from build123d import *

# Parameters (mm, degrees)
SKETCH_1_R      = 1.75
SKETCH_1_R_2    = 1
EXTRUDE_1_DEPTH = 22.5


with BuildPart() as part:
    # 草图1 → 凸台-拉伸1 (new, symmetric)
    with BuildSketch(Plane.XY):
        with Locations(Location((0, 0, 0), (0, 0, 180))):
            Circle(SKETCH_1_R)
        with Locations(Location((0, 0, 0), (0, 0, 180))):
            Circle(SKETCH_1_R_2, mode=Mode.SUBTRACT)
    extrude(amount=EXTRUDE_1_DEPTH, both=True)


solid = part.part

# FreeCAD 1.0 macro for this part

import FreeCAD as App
import Part
import Sketcher

V = App.Vector
Q = App.Units.Quantity

doc = App.newDocument("Part")
body = doc.addObject("PartDesign::Body", "Body")

# Sketch on XY plane
sketch1 = body.newObject("Sketcher::SketchObject", "Sketch")
sketch1.AttachmentSupport = (doc.getObject("XY_Plane"), [""])
sketch1.MapMode = "FlatFace"
sketch1.addGeometry([
    Part.Circle(V(0, 0, 0), V(0, 0, 1), 1.8),
    Part.Circle(V(0, 0, 0), V(0, 0, 1), 1),
], False)
sketch1.addConstraint([
    Sketcher.Constraint("Coincident", 0, 3, -1, 1),
    Sketcher.Constraint("Coincident", 1, 3, -1, 1),
    Sketcher.Constraint("Diameter", 1, Q("2 mm")),
    Sketcher.Constraint("Diameter", 0, Q("3.5 mm")),
])
pad1 = body.newObject("PartDesign::Pad", "Pad")
pad1.Profile = sketch1
pad1.Length = 45
pad1.Midplane = True

doc.recompute()
